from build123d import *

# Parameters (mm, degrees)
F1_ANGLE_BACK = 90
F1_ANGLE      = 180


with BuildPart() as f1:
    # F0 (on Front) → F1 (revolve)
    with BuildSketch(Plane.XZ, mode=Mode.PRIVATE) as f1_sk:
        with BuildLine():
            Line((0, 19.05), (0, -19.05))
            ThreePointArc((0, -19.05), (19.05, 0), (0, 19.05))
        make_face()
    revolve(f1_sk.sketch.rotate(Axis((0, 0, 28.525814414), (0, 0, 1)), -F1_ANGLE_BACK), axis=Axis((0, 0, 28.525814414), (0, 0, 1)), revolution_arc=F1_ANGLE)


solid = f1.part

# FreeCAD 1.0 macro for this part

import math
import FreeCAD as App
import Part
import Sketcher
Q = App.Units.Quantity

doc = App.newDocument("Part")
body = doc.addObject("PartDesign::Body", "Body")

sketch1 = doc.addObject("Sketcher::SketchObject", "Sketch")
body.addObject(sketch1)
sketch1.AttachmentSupport = (doc.YZ_Plane, [""])
sketch1.MapMode = "FlatFace"
sketch1.addGeometry([
    Part.LineSegment(App.Vector(0, 19, 0), App.Vector(0, -19, 0)),
    Part.ArcOfCircle(Part.Circle(App.Vector(0, 0, 0), App.Vector(0, 0, 1), 19), math.radians(90), math.radians(270)),
], False)
sketch1.addConstraint([
    Sketcher.Constraint("Coincident", 0, 1, 1, 1),
    Sketcher.Constraint("Coincident", 1, 2, 0, 2),
    Sketcher.Constraint("Vertical", 0),
    Sketcher.Constraint("Coincident", 1, 3, -1, 1),
    Sketcher.Constraint("PointOnObject", 0, 1, -2),
    Sketcher.Constraint("Radius", 1, Q("0.75 in")),
])
revolution = doc.addObject("PartDesign::Revolution", "Revolution")
body.addObject(revolution)
revolution.Profile = sketch1
revolution.ReferenceAxis = (sketch1, ["V_Axis"])
revolution.Angle = 180

doc.recompute()
